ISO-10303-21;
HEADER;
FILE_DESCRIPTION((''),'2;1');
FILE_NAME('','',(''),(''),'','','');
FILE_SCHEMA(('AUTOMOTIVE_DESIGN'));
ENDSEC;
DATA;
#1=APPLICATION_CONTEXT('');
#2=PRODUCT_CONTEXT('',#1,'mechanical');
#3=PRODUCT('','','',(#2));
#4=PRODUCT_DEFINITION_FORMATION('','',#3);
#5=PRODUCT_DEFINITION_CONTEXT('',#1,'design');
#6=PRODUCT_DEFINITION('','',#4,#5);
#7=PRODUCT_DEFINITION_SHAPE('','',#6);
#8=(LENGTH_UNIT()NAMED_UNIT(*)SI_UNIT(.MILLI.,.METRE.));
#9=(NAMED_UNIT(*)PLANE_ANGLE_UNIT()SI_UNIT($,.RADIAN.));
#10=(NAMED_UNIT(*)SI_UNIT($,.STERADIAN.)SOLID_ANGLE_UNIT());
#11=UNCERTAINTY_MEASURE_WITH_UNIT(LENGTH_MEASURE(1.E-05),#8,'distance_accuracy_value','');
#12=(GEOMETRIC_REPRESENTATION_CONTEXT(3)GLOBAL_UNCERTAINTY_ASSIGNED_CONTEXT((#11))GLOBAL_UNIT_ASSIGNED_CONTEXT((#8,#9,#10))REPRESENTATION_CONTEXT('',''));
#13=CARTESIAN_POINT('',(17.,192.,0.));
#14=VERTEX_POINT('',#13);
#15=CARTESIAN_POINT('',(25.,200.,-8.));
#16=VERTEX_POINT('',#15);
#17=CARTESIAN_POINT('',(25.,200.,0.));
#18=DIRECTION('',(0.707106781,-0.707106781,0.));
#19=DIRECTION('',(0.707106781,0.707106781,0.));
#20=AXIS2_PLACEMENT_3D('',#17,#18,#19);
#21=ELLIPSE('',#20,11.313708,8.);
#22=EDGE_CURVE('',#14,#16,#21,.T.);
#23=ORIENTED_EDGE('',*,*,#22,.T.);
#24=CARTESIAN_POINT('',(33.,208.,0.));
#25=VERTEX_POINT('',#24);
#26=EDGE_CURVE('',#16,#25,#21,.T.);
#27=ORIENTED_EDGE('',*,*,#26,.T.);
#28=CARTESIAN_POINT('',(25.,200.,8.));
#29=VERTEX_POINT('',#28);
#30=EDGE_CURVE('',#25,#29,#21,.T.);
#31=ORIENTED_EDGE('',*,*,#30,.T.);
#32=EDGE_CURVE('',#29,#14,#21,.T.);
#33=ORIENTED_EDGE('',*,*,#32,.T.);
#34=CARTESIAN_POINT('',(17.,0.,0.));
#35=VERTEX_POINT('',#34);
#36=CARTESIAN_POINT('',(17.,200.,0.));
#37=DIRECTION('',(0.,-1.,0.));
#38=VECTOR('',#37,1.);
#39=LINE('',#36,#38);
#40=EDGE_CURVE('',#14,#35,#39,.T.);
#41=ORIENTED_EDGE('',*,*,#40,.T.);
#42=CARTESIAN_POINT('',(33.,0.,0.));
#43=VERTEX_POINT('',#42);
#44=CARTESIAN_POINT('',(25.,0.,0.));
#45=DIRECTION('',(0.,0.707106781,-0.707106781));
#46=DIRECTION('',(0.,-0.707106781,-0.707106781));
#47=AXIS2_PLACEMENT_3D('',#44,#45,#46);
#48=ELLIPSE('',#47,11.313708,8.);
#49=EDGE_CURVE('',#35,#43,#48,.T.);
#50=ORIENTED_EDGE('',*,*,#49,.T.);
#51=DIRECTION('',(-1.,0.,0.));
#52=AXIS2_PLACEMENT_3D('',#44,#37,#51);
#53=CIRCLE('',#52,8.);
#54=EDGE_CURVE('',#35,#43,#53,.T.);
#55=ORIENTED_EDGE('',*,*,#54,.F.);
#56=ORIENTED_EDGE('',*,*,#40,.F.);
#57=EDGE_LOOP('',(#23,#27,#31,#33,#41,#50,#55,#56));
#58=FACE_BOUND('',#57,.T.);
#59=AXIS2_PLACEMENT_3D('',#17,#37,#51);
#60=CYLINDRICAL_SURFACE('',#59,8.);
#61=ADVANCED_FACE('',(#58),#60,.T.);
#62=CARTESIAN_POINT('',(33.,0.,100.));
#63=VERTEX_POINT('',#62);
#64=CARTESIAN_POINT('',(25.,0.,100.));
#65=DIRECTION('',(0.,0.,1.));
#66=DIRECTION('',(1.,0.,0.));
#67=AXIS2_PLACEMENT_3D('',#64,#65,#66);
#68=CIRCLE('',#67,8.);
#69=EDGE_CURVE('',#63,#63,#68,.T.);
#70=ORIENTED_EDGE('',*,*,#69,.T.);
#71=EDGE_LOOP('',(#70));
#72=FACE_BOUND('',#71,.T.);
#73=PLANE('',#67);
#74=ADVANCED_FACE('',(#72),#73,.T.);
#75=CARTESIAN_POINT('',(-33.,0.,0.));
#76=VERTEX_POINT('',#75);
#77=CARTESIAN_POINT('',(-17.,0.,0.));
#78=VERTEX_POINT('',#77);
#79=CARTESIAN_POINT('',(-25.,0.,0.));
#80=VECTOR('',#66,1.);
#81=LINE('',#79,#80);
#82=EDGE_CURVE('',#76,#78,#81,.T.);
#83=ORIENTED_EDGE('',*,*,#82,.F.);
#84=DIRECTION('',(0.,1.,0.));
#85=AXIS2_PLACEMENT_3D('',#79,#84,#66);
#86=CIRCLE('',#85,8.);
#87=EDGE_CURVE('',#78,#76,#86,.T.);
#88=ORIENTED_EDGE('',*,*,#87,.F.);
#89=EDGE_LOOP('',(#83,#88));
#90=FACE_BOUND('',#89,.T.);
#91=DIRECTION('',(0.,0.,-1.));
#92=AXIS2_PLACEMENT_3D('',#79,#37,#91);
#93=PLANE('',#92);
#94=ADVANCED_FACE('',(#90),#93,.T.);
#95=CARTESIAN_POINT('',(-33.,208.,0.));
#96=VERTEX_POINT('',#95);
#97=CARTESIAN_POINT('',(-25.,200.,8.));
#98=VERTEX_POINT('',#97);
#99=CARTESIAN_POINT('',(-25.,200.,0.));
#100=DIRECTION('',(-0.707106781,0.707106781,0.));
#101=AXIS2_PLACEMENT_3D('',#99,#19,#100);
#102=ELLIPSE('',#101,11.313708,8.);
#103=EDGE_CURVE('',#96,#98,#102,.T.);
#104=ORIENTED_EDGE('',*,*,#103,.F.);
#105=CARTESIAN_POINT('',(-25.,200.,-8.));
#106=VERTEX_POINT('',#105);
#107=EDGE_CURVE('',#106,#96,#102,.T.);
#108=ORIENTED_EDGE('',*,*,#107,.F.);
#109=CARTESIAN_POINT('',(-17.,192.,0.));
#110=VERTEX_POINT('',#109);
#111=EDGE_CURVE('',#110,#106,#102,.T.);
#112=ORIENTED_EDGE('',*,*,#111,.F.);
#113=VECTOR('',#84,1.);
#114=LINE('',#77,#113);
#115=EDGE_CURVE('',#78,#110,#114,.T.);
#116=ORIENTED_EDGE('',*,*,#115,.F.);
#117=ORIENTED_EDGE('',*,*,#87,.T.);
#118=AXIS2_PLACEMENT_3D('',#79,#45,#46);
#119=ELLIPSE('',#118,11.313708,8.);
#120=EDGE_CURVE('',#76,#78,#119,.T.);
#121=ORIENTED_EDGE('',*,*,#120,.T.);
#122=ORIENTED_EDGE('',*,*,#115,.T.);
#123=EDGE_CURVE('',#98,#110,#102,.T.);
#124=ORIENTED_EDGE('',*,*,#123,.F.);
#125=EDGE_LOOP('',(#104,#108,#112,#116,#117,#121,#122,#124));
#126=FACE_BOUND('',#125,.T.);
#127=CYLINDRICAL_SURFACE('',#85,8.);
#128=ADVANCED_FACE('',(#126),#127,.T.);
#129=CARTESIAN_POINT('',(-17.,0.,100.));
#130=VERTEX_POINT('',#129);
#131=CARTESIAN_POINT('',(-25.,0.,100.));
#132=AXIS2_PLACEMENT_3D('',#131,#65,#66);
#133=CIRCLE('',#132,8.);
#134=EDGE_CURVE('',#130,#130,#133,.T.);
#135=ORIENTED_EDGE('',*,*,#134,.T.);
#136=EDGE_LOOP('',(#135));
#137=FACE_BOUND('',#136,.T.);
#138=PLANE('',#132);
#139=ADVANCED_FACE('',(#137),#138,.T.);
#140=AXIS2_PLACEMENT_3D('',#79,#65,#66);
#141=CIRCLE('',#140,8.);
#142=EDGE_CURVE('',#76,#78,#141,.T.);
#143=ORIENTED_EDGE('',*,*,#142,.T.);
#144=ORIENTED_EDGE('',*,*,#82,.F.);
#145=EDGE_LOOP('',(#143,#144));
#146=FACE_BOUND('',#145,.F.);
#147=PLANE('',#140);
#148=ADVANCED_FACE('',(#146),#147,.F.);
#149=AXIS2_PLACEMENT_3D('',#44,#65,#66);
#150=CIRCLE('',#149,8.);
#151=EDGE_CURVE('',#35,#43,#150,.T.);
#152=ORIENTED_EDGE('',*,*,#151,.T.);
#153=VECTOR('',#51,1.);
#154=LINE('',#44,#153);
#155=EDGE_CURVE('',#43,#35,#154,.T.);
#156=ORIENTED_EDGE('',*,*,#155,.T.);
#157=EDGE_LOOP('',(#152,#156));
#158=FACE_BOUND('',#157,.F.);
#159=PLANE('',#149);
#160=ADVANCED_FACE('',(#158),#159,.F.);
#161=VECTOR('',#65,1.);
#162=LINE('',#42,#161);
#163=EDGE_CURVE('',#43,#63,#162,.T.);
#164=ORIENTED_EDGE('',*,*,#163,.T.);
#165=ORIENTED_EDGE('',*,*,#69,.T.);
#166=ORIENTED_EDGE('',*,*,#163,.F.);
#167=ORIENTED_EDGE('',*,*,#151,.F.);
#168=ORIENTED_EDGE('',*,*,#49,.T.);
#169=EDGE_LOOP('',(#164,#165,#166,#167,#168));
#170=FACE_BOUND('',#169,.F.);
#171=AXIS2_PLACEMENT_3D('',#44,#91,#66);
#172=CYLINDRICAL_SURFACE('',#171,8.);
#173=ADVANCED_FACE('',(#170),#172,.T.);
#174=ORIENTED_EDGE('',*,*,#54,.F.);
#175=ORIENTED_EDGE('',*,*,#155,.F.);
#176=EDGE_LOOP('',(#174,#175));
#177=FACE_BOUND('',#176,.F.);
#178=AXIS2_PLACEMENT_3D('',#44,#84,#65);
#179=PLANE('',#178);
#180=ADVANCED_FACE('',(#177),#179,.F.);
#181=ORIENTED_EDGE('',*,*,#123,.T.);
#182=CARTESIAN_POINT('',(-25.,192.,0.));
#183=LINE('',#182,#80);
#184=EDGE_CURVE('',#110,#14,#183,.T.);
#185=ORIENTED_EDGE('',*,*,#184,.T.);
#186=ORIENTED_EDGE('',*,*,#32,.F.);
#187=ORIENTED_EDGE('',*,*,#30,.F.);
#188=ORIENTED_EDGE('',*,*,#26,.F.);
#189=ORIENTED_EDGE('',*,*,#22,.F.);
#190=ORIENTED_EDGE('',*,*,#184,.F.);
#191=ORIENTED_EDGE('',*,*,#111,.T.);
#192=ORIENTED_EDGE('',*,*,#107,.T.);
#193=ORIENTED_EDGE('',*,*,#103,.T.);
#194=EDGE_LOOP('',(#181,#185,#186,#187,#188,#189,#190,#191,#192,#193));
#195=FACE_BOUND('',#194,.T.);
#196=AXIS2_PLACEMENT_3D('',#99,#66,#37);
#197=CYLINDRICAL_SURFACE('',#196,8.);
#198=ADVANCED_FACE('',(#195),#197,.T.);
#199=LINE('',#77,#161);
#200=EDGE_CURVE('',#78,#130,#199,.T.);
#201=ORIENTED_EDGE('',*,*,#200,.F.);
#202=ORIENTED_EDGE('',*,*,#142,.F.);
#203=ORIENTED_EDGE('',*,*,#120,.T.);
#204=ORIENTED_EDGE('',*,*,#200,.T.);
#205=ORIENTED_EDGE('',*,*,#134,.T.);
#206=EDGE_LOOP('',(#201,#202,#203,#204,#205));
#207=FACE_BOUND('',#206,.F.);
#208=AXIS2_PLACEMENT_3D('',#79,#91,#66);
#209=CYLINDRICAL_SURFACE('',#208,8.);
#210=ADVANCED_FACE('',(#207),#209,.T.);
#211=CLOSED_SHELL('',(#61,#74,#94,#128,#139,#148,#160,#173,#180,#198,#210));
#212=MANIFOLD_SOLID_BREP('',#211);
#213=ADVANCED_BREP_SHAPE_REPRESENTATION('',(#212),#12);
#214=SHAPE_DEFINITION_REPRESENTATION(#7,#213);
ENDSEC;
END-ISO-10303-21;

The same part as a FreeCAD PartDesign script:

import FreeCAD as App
import Part
import Sketcher
Q = App.Units.Quantity

doc = App.newDocument("Part")
params = doc.addObject("Spreadsheet::Sheet", "Params")
for row, (alias, value) in enumerate([
    ("sketch1_diameter", "16 mm"),
    ("pad1_length", "100 mm"),
    ("sketch2_diameter", "16 mm"),
    ("pad2_length", "100 mm"),
    ("sketch3_diameter", "16 mm"),
    ("sketch4_width", "50 mm"),
    ("sketch4_height", "200 mm"),
], start=1):
    params.set(f"A{row}", alias)
    params.set(f"B{row}", "=" + value)
    params.setAlias(f"B{row}", alias)

body = doc.addObject("PartDesign::Body", "Body")

sketch1 = body.newObject("Sketcher::SketchObject", "Sketch")
sketch1.AttachmentSupport = (doc.getObject("XY_Plane"), [""])
sketch1.MapMode = "FlatFace"
sketch1.addGeometry(Part.Circle(App.Vector(-25, 0, 0), App.Vector(0, 0, 1), 8), False)
sketch1.addConstraint([
    Sketcher.Constraint("PointOnObject", 0, 3, -1),
    Sketcher.Constraint("Diameter", 0, Q("16 mm")),
    Sketcher.Constraint("DistanceX", 0, 3, -1, 1, Q("25 mm")),
])
sketch1.setExpression("Constraints[1]", "Params.sketch1_diameter")
pad1 = body.newObject("PartDesign::Pad", "Pad")
pad1.Profile = sketch1
pad1.setExpression("Length", "Params.pad1_length")
body2 = doc.addObject("PartDesign::Body", "Body001")

sketch2 = body2.newObject("Sketcher::SketchObject", "Sketch001")
sketch2.AttachmentSupport = (doc.getObject("XY_Plane001"), [""])
sketch2.MapMode = "FlatFace"
sketch2.addGeometry(Part.Circle(App.Vector(25, 0, 0), App.Vector(0, 0, 1), 8), False)
sketch2.addConstraint([
    Sketcher.Constraint("PointOnObject", 0, 3, -1),
    Sketcher.Constraint("Diameter", 0, Q("16 mm")),
    Sketcher.Constraint("DistanceX", -1, 1, 0, 3, Q("25 mm")),
])
sketch2.setExpression("Constraints[1]", "Params.sketch2_diameter")
pad2 = body2.newObject("PartDesign::Pad", "Pad001")
pad2.Profile = sketch2
pad2.setExpression("Length", "Params.pad2_length")
body.AllowCompound = True
doc.recompute()

boolean = body.newObject("PartDesign::Boolean", "Boolean")
boolean.Type = "Fuse"
boolean.addObjects([body2])

sketch3 = body.newObject("Sketcher::SketchObject", "Sketch002")
sketch3.AttachmentSupport = (doc.getObject("XZ_Plane"), [""])
sketch3.MapMode = "FlatFace"
sketch3.addGeometry(Part.Circle(App.Vector(-25, 0, 0), App.Vector(0, 0, 1), 8), False)
sketch3.addConstraint([
    Sketcher.Constraint("PointOnObject", 0, 3, -1),
    Sketcher.Constraint("Diameter", 0, Q("16 mm")),
    Sketcher.Constraint("DistanceX", 0, 3, -1, 1, Q("25 mm")),
])
sketch3.setExpression("Constraints[1]", "Params.sketch3_diameter")

sketch4 = body.newObject("Sketcher::SketchObject", "Sketch003")
sketch4.AttachmentSupport = (doc.getObject("XY_Plane"), [""])
sketch4.MapMode = "FlatFace"
sketch4.addGeometry([
    Part.LineSegment(App.Vector(-25, 0, 0), App.Vector(-25, 200, 0)),
    Part.LineSegment(App.Vector(-25, 200, 0), App.Vector(25, 200, 0)),
    Part.LineSegment(App.Vector(25, 200, 0), App.Vector(25, 0, 0)),
], False)
sketch4.addConstraint([
    Sketcher.Constraint("Coincident", 0, 2, 1, 1),
    Sketcher.Constraint("Coincident", 1, 2, 2, 1),
    Sketcher.Constraint("Vertical", 0),
    Sketcher.Constraint("Horizontal", 1),
    Sketcher.Constraint("Vertical", 2),
    Sketcher.Constraint("Symmetric", 0, 1, 2, 2, -1, 1),
    Sketcher.Constraint("PointOnObject", 0, 1, -1),
    Sketcher.Constraint("DistanceX", 1, 1, 1, 2, Q("50 mm")),
    Sketcher.Constraint("DistanceY", 0, 1, 0, 2, Q("200 mm")),
])
sketch4.setExpression("Constraints[7]", "Params.sketch4_width")
sketch4.setExpression("Constraints[8]", "Params.sketch4_height")
doc.recompute()

additivepipe = body.newObject("PartDesign::AdditivePipe", "AdditivePipe")
additivepipe.Profile = sketch3
additivepipe.Spine = (sketch4, ["Edge1", "Edge2", "Edge3"])
additivepipe.Transition = "Right corner"

doc.recompute()
